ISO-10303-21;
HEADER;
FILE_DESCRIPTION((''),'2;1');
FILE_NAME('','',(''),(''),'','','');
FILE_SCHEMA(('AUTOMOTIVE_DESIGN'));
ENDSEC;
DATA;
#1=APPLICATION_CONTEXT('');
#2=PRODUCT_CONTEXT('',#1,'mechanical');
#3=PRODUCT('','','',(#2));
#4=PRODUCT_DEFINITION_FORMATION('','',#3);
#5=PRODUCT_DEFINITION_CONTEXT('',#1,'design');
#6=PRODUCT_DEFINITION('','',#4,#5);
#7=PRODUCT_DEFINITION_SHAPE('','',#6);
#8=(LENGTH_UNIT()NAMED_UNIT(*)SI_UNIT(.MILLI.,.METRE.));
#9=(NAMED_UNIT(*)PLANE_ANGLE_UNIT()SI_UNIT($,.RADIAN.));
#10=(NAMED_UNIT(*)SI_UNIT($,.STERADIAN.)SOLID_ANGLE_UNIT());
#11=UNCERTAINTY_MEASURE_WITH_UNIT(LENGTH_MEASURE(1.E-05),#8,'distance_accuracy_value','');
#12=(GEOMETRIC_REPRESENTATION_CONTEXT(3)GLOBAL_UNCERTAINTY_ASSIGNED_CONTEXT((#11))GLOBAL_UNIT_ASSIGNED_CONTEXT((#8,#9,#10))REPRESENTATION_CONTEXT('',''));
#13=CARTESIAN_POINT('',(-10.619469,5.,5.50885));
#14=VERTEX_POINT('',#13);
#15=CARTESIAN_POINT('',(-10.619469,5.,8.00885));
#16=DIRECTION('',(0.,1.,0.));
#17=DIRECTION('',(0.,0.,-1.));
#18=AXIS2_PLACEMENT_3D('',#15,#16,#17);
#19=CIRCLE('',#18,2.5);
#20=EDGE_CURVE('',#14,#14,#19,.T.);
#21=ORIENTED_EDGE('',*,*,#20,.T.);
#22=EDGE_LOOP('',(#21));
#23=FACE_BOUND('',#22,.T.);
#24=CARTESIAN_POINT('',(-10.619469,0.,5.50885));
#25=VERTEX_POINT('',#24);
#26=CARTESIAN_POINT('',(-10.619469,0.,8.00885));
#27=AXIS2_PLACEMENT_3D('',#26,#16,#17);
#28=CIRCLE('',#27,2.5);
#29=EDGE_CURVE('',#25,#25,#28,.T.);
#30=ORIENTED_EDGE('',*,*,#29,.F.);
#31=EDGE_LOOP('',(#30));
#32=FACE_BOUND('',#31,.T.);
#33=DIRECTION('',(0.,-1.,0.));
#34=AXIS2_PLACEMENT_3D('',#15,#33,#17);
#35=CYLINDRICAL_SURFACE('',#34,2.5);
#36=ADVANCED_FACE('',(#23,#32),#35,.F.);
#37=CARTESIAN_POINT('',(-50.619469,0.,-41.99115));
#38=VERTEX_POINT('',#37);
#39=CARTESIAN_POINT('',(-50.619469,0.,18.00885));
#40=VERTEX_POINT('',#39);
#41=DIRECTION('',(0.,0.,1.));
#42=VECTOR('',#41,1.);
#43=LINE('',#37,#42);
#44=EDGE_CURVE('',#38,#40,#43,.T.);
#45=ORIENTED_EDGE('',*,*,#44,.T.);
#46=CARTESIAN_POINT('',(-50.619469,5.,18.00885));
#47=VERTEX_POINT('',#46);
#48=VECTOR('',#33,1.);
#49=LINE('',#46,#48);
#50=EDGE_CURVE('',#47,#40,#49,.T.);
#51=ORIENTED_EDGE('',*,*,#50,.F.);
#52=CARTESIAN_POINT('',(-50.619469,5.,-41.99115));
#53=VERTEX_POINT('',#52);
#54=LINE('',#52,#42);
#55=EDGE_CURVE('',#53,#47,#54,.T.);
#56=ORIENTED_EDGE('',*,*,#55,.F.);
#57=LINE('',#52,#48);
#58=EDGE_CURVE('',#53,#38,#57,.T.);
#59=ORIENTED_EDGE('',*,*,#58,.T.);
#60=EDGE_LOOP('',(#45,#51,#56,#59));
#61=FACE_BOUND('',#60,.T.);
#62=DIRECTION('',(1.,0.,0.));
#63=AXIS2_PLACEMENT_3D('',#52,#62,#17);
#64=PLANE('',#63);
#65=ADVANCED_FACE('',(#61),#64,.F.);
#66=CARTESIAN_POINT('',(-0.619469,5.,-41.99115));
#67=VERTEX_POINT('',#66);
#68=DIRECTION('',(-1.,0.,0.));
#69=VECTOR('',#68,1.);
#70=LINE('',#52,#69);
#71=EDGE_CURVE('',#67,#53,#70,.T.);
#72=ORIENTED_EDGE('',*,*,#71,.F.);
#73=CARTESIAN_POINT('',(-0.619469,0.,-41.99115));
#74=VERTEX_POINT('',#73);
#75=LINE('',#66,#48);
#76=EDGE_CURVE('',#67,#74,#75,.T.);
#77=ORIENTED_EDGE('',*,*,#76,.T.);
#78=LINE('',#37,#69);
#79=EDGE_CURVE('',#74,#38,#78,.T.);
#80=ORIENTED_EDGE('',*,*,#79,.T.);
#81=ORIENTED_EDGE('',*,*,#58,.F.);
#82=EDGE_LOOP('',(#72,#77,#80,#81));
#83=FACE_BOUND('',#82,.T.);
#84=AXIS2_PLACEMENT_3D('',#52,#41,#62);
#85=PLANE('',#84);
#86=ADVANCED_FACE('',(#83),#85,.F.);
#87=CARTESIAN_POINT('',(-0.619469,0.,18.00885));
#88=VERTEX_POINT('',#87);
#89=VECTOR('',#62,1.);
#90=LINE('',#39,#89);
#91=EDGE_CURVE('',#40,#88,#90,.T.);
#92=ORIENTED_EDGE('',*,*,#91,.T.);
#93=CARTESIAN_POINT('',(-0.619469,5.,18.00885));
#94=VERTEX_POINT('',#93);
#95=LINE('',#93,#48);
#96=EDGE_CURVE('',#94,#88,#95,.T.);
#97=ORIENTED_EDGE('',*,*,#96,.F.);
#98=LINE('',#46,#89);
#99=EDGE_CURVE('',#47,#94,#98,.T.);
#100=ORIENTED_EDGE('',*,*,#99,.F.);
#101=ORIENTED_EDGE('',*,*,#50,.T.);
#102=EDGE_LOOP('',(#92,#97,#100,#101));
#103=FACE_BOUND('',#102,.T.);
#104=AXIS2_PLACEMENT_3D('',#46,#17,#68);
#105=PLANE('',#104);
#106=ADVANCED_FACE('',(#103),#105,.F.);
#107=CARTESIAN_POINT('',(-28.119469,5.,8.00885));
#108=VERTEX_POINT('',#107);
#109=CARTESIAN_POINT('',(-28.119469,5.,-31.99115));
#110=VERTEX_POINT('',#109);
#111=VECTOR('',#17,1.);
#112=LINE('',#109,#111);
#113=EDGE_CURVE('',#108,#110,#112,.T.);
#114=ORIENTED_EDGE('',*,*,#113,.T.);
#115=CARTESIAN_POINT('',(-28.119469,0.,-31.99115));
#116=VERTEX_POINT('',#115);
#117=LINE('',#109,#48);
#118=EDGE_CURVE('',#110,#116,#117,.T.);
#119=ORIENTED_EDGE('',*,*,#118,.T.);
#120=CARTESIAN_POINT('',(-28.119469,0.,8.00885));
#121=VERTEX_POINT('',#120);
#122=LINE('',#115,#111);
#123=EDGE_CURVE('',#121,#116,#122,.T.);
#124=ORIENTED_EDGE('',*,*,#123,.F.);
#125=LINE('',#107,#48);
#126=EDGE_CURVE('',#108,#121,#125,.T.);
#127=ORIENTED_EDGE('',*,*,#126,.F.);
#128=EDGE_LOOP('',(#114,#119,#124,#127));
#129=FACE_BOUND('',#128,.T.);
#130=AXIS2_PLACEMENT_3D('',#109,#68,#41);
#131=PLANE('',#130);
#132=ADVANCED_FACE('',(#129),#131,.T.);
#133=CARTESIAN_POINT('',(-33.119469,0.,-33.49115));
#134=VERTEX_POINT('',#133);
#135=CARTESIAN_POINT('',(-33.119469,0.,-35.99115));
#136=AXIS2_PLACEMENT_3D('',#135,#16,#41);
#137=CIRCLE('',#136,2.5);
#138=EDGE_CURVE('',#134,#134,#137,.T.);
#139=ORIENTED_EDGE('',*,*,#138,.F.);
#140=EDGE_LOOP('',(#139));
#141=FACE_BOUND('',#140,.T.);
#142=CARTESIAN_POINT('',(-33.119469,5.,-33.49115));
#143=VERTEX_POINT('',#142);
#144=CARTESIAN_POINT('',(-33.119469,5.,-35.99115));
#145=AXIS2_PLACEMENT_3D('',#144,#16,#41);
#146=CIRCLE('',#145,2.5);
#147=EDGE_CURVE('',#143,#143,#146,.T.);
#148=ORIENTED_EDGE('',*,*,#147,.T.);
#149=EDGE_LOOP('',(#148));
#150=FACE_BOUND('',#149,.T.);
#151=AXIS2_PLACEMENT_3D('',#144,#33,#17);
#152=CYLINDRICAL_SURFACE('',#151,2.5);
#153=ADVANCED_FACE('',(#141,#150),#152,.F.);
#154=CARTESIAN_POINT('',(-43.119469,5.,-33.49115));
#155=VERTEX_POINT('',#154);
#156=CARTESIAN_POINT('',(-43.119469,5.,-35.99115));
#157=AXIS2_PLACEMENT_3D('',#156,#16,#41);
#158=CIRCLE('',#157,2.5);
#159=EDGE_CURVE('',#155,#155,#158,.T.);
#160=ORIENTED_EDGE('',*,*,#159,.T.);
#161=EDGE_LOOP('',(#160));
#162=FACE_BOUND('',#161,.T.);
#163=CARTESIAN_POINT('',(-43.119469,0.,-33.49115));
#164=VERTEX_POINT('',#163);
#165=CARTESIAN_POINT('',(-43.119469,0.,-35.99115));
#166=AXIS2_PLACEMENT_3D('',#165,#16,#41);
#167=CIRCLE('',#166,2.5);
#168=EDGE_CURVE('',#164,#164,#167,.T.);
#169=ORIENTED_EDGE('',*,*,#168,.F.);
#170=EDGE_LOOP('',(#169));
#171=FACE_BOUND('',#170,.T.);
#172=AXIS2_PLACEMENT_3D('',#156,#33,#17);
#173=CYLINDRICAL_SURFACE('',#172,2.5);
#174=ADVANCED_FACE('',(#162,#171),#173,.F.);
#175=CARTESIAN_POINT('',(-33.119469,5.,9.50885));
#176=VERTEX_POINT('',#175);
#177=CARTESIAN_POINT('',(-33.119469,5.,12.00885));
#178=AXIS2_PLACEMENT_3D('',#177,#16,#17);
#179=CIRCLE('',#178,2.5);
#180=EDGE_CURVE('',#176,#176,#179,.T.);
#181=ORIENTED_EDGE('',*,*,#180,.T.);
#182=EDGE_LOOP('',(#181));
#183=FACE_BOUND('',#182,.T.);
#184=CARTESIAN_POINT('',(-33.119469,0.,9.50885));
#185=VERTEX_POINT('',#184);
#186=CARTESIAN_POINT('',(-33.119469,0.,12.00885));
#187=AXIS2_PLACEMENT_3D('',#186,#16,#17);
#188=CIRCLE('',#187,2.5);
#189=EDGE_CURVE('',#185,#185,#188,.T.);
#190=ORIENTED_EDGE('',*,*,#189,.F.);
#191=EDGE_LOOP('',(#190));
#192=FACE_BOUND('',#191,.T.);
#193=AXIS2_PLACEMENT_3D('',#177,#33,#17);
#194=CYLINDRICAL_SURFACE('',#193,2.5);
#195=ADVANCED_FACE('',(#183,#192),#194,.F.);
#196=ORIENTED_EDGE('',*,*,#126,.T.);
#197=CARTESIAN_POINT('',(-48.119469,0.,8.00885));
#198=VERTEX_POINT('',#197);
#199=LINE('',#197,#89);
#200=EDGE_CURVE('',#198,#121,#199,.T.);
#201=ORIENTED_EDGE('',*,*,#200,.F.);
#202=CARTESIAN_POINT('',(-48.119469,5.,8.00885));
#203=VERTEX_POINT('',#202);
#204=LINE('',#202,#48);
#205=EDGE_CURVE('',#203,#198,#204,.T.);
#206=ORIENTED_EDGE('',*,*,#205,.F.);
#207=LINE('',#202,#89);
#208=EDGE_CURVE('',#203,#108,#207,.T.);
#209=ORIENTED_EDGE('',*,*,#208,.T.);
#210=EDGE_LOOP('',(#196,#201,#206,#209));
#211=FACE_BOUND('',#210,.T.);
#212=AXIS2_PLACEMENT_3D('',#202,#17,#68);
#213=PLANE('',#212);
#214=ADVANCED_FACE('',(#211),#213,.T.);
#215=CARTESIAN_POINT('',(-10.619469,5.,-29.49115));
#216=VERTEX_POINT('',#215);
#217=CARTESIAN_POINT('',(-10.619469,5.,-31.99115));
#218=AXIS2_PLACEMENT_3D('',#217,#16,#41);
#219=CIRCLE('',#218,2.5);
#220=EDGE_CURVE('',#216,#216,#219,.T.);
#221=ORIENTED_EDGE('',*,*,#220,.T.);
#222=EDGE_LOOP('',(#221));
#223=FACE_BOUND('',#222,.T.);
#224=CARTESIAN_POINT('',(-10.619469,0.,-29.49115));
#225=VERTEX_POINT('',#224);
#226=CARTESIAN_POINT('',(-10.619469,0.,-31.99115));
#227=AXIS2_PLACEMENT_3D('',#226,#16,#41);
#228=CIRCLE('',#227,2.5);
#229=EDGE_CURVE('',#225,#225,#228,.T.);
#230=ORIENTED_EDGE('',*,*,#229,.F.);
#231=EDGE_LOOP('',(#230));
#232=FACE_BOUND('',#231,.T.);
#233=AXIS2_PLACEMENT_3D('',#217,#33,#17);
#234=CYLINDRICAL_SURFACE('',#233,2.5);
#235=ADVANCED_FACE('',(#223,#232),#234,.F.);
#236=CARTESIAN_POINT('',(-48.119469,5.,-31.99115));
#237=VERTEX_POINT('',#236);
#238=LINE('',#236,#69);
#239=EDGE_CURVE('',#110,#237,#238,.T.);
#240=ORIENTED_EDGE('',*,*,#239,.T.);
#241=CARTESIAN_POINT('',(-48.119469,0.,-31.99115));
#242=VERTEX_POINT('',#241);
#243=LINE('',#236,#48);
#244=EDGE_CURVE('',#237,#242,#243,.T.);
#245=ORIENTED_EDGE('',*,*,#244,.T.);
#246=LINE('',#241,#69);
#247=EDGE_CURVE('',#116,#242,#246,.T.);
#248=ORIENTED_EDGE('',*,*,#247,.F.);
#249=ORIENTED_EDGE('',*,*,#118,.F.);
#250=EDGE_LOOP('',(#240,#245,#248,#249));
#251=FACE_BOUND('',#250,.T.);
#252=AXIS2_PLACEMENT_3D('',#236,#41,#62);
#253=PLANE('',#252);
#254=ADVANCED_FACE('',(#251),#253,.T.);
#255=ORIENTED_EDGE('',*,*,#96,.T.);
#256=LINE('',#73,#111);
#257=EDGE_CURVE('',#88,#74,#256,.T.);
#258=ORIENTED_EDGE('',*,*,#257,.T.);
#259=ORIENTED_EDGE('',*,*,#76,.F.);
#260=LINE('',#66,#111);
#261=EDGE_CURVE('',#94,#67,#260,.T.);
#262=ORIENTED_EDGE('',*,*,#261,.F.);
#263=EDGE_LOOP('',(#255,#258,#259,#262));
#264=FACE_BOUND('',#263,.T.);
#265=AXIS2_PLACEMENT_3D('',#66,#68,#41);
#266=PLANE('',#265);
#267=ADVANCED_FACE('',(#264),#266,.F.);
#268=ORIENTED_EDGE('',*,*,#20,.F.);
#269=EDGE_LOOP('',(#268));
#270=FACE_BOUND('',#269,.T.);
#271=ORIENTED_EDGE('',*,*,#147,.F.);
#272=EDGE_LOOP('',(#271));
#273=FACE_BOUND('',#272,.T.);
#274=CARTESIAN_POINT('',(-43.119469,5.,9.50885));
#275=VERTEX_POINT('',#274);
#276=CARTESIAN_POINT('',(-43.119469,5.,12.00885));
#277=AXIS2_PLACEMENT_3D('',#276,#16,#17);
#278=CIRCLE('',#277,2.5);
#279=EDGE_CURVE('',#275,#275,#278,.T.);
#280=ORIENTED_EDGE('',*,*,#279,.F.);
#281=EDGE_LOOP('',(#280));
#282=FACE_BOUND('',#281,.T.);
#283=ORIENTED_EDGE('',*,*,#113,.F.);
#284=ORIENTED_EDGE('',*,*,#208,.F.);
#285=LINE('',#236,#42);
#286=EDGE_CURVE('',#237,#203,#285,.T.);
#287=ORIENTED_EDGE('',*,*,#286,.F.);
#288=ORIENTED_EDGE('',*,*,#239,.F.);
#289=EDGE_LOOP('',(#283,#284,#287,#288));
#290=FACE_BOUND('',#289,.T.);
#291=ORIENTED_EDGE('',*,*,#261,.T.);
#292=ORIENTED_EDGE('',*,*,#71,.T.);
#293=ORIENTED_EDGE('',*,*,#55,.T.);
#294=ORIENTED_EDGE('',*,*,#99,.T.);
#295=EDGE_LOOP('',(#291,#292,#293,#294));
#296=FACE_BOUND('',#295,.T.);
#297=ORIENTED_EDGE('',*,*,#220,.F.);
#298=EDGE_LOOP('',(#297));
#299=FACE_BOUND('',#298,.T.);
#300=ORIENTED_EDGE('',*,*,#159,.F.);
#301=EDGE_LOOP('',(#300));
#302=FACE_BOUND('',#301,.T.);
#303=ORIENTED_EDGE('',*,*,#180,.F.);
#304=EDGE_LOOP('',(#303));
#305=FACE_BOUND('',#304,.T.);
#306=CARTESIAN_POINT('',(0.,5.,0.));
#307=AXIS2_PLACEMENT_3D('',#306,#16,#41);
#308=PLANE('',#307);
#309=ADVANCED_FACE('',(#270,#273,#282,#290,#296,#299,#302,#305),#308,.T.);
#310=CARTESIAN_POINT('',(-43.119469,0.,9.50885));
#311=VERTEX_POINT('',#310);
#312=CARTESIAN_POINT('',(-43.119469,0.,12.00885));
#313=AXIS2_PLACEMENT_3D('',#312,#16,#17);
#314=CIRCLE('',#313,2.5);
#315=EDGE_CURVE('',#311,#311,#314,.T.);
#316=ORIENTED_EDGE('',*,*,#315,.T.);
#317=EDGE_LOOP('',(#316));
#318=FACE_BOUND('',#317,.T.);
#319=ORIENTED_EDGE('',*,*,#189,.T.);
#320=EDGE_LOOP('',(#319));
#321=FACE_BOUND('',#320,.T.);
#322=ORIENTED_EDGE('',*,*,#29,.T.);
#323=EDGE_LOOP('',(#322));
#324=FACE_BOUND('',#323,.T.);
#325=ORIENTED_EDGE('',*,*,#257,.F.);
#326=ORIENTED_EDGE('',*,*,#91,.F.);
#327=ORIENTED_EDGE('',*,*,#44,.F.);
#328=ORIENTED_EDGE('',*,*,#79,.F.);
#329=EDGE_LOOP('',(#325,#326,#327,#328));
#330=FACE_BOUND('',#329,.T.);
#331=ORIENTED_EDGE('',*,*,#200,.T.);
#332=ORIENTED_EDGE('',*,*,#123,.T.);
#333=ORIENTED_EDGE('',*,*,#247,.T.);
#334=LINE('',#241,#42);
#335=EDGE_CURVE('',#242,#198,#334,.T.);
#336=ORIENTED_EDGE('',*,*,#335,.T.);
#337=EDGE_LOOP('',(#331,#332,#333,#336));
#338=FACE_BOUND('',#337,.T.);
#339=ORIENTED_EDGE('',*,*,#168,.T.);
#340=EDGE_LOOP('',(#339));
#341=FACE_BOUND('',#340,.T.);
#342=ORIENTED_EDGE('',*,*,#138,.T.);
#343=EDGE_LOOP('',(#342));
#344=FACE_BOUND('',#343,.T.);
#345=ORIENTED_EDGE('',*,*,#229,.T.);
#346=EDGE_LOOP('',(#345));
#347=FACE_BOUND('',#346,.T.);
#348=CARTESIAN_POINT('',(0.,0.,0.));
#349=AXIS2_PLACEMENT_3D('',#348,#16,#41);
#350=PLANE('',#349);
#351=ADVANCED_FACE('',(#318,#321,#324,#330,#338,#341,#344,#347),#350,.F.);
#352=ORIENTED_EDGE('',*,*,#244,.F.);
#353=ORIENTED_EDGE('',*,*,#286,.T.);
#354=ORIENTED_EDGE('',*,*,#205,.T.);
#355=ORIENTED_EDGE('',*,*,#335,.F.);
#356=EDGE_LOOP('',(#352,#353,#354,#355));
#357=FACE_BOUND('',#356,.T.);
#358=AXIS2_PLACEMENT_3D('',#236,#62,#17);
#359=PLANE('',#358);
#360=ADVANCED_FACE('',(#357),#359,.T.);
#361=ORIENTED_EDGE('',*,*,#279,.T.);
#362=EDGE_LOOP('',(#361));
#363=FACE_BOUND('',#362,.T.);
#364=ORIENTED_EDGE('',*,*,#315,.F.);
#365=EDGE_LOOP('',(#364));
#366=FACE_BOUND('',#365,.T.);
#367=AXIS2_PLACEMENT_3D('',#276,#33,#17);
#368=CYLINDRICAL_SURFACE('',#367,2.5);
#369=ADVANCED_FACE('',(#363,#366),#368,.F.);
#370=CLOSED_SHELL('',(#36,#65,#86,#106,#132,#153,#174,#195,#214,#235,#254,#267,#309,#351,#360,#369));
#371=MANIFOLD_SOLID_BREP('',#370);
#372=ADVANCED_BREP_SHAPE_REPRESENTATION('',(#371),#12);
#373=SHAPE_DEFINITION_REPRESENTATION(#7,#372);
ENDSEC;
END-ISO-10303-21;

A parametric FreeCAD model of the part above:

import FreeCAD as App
import Part
import Sketcher

V = App.Vector
Q = App.Units.Quantity


def add_polygon(sketch, points):
    """Adds a closed chain of lines whose ends are joined by coincident constraints."""
    first, n = sketch.GeometryCount, len(points)
    for a, b in zip(points, points[1:] + points[:1]):
        sketch.addGeometry(Part.LineSegment(App.Vector(*a, 0), App.Vector(*b, 0)), False)
    for i in range(n):
        sketch.addConstraint(Sketcher.Constraint("Coincident", first + i, 2, first + (i + 1) % n, 1))

doc = App.newDocument("Part")
params = doc.addObject("Spreadsheet::Sheet", "Params")
for row, (alias, value) in enumerate([
    ("sketch1_diameter", "5 mm"),
    ("sketch1_width", "50 mm"),
    ("sketch1_width2", "20 mm"),
    ("sketch1_height", "60 mm"),
    ("sketch1_height2", "40 mm"),
    ("pad1_length", "5 mm"),
], start=1):
    params.set(f"A{row}", alias)
    params.set(f"B{row}", "=" + value)
    params.setAlias(f"B{row}", alias)

body = doc.addObject("PartDesign::Body", "Body")

sketch1 = body.newObject("Sketcher::SketchObject", "Sketch")
sketch1.AttachmentSupport = (doc.getObject("XZ_Plane"), [""])
sketch1.MapMode = "FlatFace"
add_polygon(sketch1, [(-50.6, -42), (-50.6, 18), (-0.6, 18), (-0.6, -42)])
sketch1.addGeometry(Part.Circle(V(-43.1, 12, 0), V(0, 0, 1), 2.5), False)
sketch1.addGeometry(Part.Circle(V(-33.1, 12, 0), V(0, 0, 1), 2.5), False)
sketch1.addGeometry(Part.Circle(V(-10.6, 8, 0), V(0, 0, 1), 2.5), False)
add_polygon(sketch1, [(-28.1, 8), (-48.1, 8), (-48.1, -32), (-28.1, -32)])
sketch1.addGeometry(Part.Circle(V(-43.1, -36, 0), V(0, 0, 1), 2.5), False)
sketch1.addGeometry(Part.Circle(V(-33.1, -36, 0), V(0, 0, 1), 2.5), False)
sketch1.addGeometry(Part.Circle(V(-10.6, -32, 0), V(0, 0, 1), 2.5), False)
sketch1.addConstraint([
    Sketcher.Constraint("Vertical", 0),
    Sketcher.Constraint("Horizontal", 1),
    Sketcher.Constraint("Vertical", 2),
    Sketcher.Constraint("Horizontal", 3),
    Sketcher.Constraint("Horizontal", 7),
    Sketcher.Constraint("Vertical", 8),
    Sketcher.Constraint("Horizontal", 9),
    Sketcher.Constraint("Vertical", 10),
    Sketcher.Constraint("Equal", 4, 5),
    Sketcher.Constraint("Equal", 5, 6),
    Sketcher.Constraint("Equal", 6, 11),
    Sketcher.Constraint("Equal", 11, 12),
    Sketcher.Constraint("Equal", 12, 13),
    Sketcher.Constraint("Horizontal", 4, 3, 5, 3),
    Sketcher.Constraint("Horizontal", 11, 3, 12, 3),
    Sketcher.Constraint("Horizontal", 6, 3, 7, 2),
    Sketcher.Constraint("Horizontal", 13, 3, 8, 2),
    Sketcher.Constraint("Vertical", 4, 3, 11, 3),
    Sketcher.Constraint("Vertical", 5, 3, 12, 3),
    Sketcher.Constraint("Vertical", 6, 3, 13, 3),
    Sketcher.Constraint("Diameter", 4, Q("5 mm")),
    Sketcher.Constraint("DistanceX", 1, 1, 1, 2, Q("50 mm")),
    Sketcher.Constraint("DistanceX", 7, 2, 7, 1, Q("20 mm")),
    Sketcher.Constraint("DistanceY", 0, 1, 0, 2, Q("60 mm")),
    Sketcher.Constraint("DistanceY", 8, 2, 8, 1, Q("40 mm")),
    Sketcher.Constraint("DistanceX", 4, 3, 5, 3, Q("10 mm")),
    Sketcher.Constraint("DistanceY", 6, 3, 5, 3, Q("4 mm")),
    Sketcher.Constraint("DistanceY", 11, 3, 4, 3, Q("48 mm")),
    Sketcher.Constraint("DistanceY", 4, 3, 0, 2, Q("6 mm")),
    Sketcher.Constraint("DistanceX", 0, 2, 6, 3, Q("40 mm")),
    Sketcher.Constraint("DistanceX", 7, 2, 4, 3, Q("5 mm")),
    Sketcher.Constraint("DistanceX", 5, 3, 6, 3, Q("22.5 mm")),
    Sketcher.Constraint("DistanceX", 4, 3, -1, 1, Q("43.119469 mm")),
    Sketcher.Constraint("DistanceY", -1, 1, 4, 3, Q("12.00885 mm")),
])
sketch1.setExpression("Constraints[28]", "Params.sketch1_diameter")
sketch1.setExpression("Constraints[29]", "Params.sketch1_width")
sketch1.setExpression("Constraints[30]", "Params.sketch1_width2")
sketch1.setExpression("Constraints[31]", "Params.sketch1_height")
sketch1.setExpression("Constraints[32]", "Params.sketch1_height2")
pad1 = body.newObject("PartDesign::Pad", "Pad")
pad1.Profile = sketch1
pad1.setExpression("Length", "Params.pad1_length")
pad1.Reversed = True

doc.recompute()
